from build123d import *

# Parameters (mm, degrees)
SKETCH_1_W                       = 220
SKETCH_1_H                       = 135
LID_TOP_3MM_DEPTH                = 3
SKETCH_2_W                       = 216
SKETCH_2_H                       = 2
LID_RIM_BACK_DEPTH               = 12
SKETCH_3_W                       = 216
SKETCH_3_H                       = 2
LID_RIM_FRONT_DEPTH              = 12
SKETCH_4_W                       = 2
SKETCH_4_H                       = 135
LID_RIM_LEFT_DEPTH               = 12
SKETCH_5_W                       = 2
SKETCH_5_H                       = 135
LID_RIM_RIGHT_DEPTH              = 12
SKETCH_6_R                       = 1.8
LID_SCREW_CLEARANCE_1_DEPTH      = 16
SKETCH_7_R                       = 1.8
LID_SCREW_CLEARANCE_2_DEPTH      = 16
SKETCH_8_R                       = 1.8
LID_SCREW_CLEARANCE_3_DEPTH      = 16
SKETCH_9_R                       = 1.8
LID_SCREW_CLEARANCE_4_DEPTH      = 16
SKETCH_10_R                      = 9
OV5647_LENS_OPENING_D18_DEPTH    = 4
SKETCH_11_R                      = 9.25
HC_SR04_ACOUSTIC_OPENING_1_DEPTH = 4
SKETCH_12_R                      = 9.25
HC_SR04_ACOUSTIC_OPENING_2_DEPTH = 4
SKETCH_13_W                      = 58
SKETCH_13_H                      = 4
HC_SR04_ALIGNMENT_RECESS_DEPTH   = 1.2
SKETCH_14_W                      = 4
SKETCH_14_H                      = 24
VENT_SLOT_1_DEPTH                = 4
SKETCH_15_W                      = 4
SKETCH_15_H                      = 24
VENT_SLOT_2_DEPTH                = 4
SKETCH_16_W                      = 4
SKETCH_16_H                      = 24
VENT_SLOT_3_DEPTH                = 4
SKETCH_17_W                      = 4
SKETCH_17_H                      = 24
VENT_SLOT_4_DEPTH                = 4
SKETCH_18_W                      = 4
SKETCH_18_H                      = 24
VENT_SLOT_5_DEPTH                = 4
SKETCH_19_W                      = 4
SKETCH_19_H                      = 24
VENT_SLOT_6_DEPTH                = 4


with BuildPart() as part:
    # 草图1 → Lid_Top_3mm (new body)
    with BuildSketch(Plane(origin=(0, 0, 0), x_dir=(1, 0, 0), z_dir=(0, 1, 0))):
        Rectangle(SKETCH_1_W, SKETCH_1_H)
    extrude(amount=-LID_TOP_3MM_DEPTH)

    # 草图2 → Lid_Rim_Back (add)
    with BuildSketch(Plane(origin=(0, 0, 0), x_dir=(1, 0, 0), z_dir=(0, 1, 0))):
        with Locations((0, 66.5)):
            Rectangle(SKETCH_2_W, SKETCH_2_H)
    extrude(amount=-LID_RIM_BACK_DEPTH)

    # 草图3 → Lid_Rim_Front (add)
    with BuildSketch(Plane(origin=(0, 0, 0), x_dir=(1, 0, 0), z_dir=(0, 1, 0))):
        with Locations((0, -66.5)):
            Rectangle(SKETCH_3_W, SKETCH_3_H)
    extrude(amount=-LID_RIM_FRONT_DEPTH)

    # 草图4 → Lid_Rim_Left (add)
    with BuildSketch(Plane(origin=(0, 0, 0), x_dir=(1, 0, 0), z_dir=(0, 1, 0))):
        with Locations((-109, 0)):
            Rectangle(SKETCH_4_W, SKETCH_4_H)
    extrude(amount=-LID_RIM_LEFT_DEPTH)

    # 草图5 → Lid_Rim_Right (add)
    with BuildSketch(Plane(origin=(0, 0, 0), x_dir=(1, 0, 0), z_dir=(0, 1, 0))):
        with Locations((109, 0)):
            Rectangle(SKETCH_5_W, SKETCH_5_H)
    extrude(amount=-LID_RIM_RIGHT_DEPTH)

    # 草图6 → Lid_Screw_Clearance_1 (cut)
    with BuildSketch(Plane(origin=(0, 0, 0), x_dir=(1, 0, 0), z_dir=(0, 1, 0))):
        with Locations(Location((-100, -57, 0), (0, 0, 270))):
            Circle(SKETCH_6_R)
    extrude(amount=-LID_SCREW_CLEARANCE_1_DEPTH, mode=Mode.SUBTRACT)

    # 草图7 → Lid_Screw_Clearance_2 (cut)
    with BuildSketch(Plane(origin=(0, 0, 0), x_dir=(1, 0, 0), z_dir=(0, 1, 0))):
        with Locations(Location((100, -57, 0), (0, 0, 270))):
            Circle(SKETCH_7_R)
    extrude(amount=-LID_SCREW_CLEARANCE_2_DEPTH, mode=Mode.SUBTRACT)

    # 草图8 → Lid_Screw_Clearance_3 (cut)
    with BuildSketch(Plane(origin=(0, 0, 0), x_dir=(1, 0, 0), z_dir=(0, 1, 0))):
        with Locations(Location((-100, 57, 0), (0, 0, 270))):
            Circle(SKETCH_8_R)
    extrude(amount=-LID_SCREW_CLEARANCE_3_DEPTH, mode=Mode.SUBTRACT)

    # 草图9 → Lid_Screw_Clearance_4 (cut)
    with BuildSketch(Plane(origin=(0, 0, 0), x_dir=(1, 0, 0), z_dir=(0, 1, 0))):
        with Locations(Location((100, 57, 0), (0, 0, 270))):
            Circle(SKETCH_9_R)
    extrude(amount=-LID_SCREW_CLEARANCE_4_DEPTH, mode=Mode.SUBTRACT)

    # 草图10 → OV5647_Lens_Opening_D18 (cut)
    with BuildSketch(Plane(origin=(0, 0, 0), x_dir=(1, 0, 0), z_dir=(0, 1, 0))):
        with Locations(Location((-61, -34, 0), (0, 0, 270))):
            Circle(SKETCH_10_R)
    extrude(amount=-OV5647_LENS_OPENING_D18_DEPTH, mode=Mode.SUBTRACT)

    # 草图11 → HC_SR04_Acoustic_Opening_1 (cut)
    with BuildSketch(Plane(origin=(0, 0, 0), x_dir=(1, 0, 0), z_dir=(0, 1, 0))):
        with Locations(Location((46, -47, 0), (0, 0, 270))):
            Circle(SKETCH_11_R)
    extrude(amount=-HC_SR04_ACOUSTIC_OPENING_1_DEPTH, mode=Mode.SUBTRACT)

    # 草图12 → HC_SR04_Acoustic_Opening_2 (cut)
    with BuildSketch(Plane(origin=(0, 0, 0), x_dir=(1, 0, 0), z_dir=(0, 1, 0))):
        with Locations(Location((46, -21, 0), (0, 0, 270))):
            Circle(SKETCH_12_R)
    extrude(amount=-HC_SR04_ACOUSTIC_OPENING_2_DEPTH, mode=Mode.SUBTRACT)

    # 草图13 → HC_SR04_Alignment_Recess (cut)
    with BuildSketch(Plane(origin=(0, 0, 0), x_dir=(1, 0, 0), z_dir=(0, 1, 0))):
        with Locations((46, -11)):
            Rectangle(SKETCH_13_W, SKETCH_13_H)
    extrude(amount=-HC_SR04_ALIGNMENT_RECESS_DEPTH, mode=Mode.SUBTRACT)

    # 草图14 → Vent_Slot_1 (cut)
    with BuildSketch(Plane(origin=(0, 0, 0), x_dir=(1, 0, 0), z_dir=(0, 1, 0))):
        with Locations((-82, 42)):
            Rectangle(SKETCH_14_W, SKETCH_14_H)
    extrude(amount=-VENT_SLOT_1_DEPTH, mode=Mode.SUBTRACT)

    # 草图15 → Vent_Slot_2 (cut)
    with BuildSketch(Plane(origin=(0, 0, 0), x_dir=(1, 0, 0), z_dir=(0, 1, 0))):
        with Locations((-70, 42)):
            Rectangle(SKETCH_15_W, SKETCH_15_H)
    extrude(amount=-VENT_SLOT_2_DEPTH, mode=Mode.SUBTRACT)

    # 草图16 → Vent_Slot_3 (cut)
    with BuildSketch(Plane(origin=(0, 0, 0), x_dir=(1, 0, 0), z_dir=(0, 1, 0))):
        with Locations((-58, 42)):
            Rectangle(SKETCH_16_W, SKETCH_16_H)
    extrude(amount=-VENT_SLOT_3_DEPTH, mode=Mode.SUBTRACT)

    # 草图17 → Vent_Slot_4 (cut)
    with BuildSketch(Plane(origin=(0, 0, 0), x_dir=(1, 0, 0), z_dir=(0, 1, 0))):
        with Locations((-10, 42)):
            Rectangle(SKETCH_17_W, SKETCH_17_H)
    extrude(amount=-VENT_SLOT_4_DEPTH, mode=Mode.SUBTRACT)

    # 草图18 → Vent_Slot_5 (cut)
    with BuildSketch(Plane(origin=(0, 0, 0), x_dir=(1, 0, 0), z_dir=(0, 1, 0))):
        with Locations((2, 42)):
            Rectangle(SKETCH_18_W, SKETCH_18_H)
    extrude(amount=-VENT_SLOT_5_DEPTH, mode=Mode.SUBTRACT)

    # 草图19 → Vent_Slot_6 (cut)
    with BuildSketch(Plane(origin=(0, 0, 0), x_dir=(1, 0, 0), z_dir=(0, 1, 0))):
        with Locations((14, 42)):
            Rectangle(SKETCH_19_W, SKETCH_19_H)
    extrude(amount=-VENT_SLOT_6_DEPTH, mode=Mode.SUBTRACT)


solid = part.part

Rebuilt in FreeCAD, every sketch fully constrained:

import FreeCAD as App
import Part
import Sketcher
from FreeCAD import Vector

doc = App.newDocument("Part")
params = doc.addObject("Spreadsheet::Sheet", "Params")
for row, (alias, value) in enumerate([
    ("sketch1_width", "220 mm"),
    ("sketch1_height", "135 mm"),
    ("pad1_length", "3 mm"),
    ("sketch2_width", "216 mm"),
    ("sketch2_height", "2 mm"),
    ("pad2_length", "12 mm"),
    ("sketch3_width", "216 mm"),
    ("sketch3_height", "2 mm"),
    ("pad3_length", "12 mm"),
    ("sketch4_width", "2 mm"),
    ("sketch4_height", "135 mm"),
    ("pad4_length", "12 mm"),
    ("sketch5_width", "2 mm"),
    ("sketch5_height", "135 mm"),
    ("pad5_length", "12 mm"),
    ("sketch6_diameter", "3.6 mm"),
    ("pocket1_length", "16 mm"),
    ("sketch7_diameter", "3.6 mm"),
    ("pocket2_length", "16 mm"),
    ("sketch8_diameter", "3.6 mm"),
    ("pocket3_length", "16 mm"),
    ("sketch9_diameter", "3.6 mm"),
    ("pocket4_length", "16 mm"),
    ("sketch10_diameter", "18 mm"),
    ("pocket5_length", "4 mm"),
    ("sketch11_diameter", "18.5 mm"),
    ("pocket6_length", "4 mm"),
    ("sketch12_diameter", "18.5 mm"),
    ("pocket7_length", "4 mm"),
    ("sketch13_width", "58 mm"),
    ("sketch13_height", "4 mm"),
    ("pocket8_length", "1.2 mm"),
    ("sketch14_width", "4 mm"),
    ("sketch14_height", "24 mm"),
    ("pocket9_length", "4 mm"),
    ("sketch15_width", "4 mm"),
    ("sketch15_height", "24 mm"),
    ("pocket10_length", "4 mm"),
    ("sketch16_width", "4 mm"),
    ("sketch16_height", "24 mm"),
    ("pocket11_length", "4 mm"),
    ("sketch17_width", "4 mm"),
    ("sketch17_height", "24 mm"),
    ("pocket12_length", "4 mm"),
    ("sketch18_width", "4 mm"),
    ("sketch18_height", "24 mm"),
    ("pocket13_length", "4 mm"),
    ("sketch19_width", "4 mm"),
    ("sketch19_height", "24 mm"),
    ("pocket14_length", "4 mm"),
], start=1):
    params.set(f"A{row}", alias)
    params.set(f"B{row}", "=" + value)
    params.setAlias(f"B{row}", alias)

body = doc.addObject("PartDesign::Body", "Body")

sketch1 = body.newObject("Sketcher::SketchObject", "Sketch")
sketch1.AttachmentSupport = (doc.getObject("XZ_Plane"), [""])
sketch1.MapMode = "FlatFace"
sketch1.addGeometry(Part.LineSegment(Vector(-110, -67.5, 0), Vector(-110, 67.5, 0)), False)
sketch1.addGeometry(Part.LineSegment(Vector(-110, 67.5, 0), Vector(110, 67.5, 0)), False)
sketch1.addGeometry(Part.LineSegment(Vector(110, 67.5, 0), Vector(110, -67.5, 0)), False)
sketch1.addGeometry(Part.LineSegment(Vector(110, -67.5, 0), Vector(-110, -67.5, 0)), False)
sketch1.addConstraint(Sketcher.Constraint("Coincident", 0, 2, 1, 1))
sketch1.addConstraint(Sketcher.Constraint("Coincident", 1, 2, 2, 1))
sketch1.addConstraint(Sketcher.Constraint("Coincident", 2, 2, 3, 1))
sketch1.addConstraint(Sketcher.Constraint("Coincident", 3, 2, 0, 1))
sketch1.addConstraint(Sketcher.Constraint("Vertical", 0))
sketch1.addConstraint(Sketcher.Constraint("Horizontal", 1))
sketch1.addConstraint(Sketcher.Constraint("Vertical", 2))
sketch1.addConstraint(Sketcher.Constraint("Horizontal", 3))
sketch1.addConstraint(Sketcher.Constraint("Symmetric", 0, 2, 2, 2, -1, 1))
sketch1.addConstraint(Sketcher.Constraint("DistanceX", 1, 1, 1, 2, 220.0))
sketch1.addConstraint(Sketcher.Constraint("DistanceY", 0, 1, 0, 2, 135.0))
sketch1.setExpression("Constraints[9]", "Params.sketch1_width")
sketch1.setExpression("Constraints[10]", "Params.sketch1_height")
pad1 = body.newObject("PartDesign::Pad", "Pad")
pad1.Profile = sketch1
pad1.setExpression("Length", "Params.pad1_length")

sketch2 = body.newObject("Sketcher::SketchObject", "Sketch001")
sketch2.AttachmentSupport = (doc.getObject("XZ_Plane"), [""])
sketch2.MapMode = "FlatFace"
sketch2.addGeometry(Part.LineSegment(Vector(-108, -67.5, 0), Vector(-108, -65.5, 0)), False)
sketch2.addGeometry(Part.LineSegment(Vector(-108, -65.5, 0), Vector(108, -65.5, 0)), False)
sketch2.addGeometry(Part.LineSegment(Vector(108, -65.5, 0), Vector(108, -67.5, 0)), False)
sketch2.addGeometry(Part.LineSegment(Vector(108, -67.5, 0), Vector(-108, -67.5, 0)), False)
sketch2.addConstraint(Sketcher.Constraint("Coincident", 0, 2, 1, 1))
sketch2.addConstraint(Sketcher.Constraint("Coincident", 1, 2, 2, 1))
sketch2.addConstraint(Sketcher.Constraint("Coincident", 2, 2, 3, 1))
sketch2.addConstraint(Sketcher.Constraint("Coincident", 3, 2, 0, 1))
sketch2.addConstraint(Sketcher.Constraint("Vertical", 0))
sketch2.addConstraint(Sketcher.Constraint("Horizontal", 1))
sketch2.addConstraint(Sketcher.Constraint("Vertical", 2))
sketch2.addConstraint(Sketcher.Constraint("Horizontal", 3))
sketch2.addConstraint(Sketcher.Constraint("DistanceX", 1, 1, 1, 2, 216.0))
sketch2.addConstraint(Sketcher.Constraint("DistanceY", 0, 1, 0, 2, 2.0))
sketch2.addConstraint(Sketcher.Constraint("DistanceX", 0, 2, -1, 1, 108.0))
sketch2.addConstraint(Sketcher.Constraint("DistanceY", 0, 2, -1, 1, 65.5))
sketch2.setExpression("Constraints[8]", "Params.sketch2_width")
sketch2.setExpression("Constraints[9]", "Params.sketch2_height")
pad2 = body.newObject("PartDesign::Pad", "Pad001")
pad2.Profile = sketch2
pad2.setExpression("Length", "Params.pad2_length")

sketch3 = body.newObject("Sketcher::SketchObject", "Sketch002")
sketch3.AttachmentSupport = (doc.getObject("XZ_Plane"), [""])
sketch3.MapMode = "FlatFace"
sketch3.addGeometry(Part.LineSegment(Vector(-108, 65.5, 0), Vector(-108, 67.5, 0)), False)
sketch3.addGeometry(Part.LineSegment(Vector(-108, 67.5, 0), Vector(108, 67.5, 0)), False)
sketch3.addGeometry(Part.LineSegment(Vector(108, 67.5, 0), Vector(108, 65.5, 0)), False)
sketch3.addGeometry(Part.LineSegment(Vector(108, 65.5, 0), Vector(-108, 65.5, 0)), False)
sketch3.addConstraint(Sketcher.Constraint("Coincident", 0, 2, 1, 1))
sketch3.addConstraint(Sketcher.Constraint("Coincident", 1, 2, 2, 1))
sketch3.addConstraint(Sketcher.Constraint("Coincident", 2, 2, 3, 1))
sketch3.addConstraint(Sketcher.Constraint("Coincident", 3, 2, 0, 1))
sketch3.addConstraint(Sketcher.Constraint("Vertical", 0))
sketch3.addConstraint(Sketcher.Constraint("Horizontal", 1))
sketch3.addConstraint(Sketcher.Constraint("Vertical", 2))
sketch3.addConstraint(Sketcher.Constraint("Horizontal", 3))
sketch3.addConstraint(Sketcher.Constraint("DistanceX", 1, 1, 1, 2, 216.0))
sketch3.addConstraint(Sketcher.Constraint("DistanceY", 0, 1, 0, 2, 2.0))
sketch3.addConstraint(Sketcher.Constraint("DistanceX", 0, 2, -1, 1, 108.0))
sketch3.addConstraint(Sketcher.Constraint("DistanceY", -1, 1, 0, 2, 67.5))
sketch3.setExpression("Constraints[8]", "Params.sketch3_width")
sketch3.setExpression("Constraints[9]", "Params.sketch3_height")
pad3 = body.newObject("PartDesign::Pad", "Pad002")
pad3.Profile = sketch3
pad3.setExpression("Length", "Params.pad3_length")

sketch4 = body.newObject("Sketcher::SketchObject", "Sketch003")
sketch4.AttachmentSupport = (doc.getObject("XZ_Plane"), [""])
sketch4.MapMode = "FlatFace"
sketch4.addGeometry(Part.LineSegment(Vector(-110, -67.5, 0), Vector(-110, 67.5, 0)), False)
sketch4.addGeometry(Part.LineSegment(Vector(-110, 67.5, 0), Vector(-108, 67.5, 0)), False)
sketch4.addGeometry(Part.LineSegment(Vector(-108, 67.5, 0), Vector(-108, -67.5, 0)), False)
sketch4.addGeometry(Part.LineSegment(Vector(-108, -67.5, 0), Vector(-110, -67.5, 0)), False)
sketch4.addConstraint(Sketcher.Constraint("Coincident", 0, 2, 1, 1))
sketch4.addConstraint(Sketcher.Constraint("Coincident", 1, 2, 2, 1))
sketch4.addConstraint(Sketcher.Constraint("Coincident", 2, 2, 3, 1))
sketch4.addConstraint(Sketcher.Constraint("Coincident", 3, 2, 0, 1))
sketch4.addConstraint(Sketcher.Constraint("Vertical", 0))
sketch4.addConstraint(Sketcher.Constraint("Horizontal", 1))
sketch4.addConstraint(Sketcher.Constraint("Vertical", 2))
sketch4.addConstraint(Sketcher.Constraint("Horizontal", 3))
sketch4.addConstraint(Sketcher.Constraint("DistanceX", 1, 1, 1, 2, 2.0))
sketch4.addConstraint(Sketcher.Constraint("DistanceY", 0, 1, 0, 2, 135.0))
sketch4.addConstraint(Sketcher.Constraint("DistanceX", 0, 2, -1, 1, 110.0))
sketch4.addConstraint(Sketcher.Constraint("DistanceY", -1, 1, 0, 2, 67.5))
sketch4.setExpression("Constraints[8]", "Params.sketch4_width")
sketch4.setExpression("Constraints[9]", "Params.sketch4_height")
pad4 = body.newObject("PartDesign::Pad", "Pad003")
pad4.Profile = sketch4
pad4.setExpression("Length", "Params.pad4_length")

sketch5 = body.newObject("Sketcher::SketchObject", "Sketch004")
sketch5.AttachmentSupport = (doc.getObject("XZ_Plane"), [""])
sketch5.MapMode = "FlatFace"
sketch5.addGeometry(Part.LineSegment(Vector(108, -67.5, 0), Vector(108, 67.5, 0)), False)
sketch5.addGeometry(Part.LineSegment(Vector(108, 67.5, 0), Vector(110, 67.5, 0)), False)
sketch5.addGeometry(Part.LineSegment(Vector(110, 67.5, 0), Vector(110, -67.5, 0)), False)
sketch5.addGeometry(Part.LineSegment(Vector(110, -67.5, 0), Vector(108, -67.5, 0)), False)
sketch5.addConstraint(Sketcher.Constraint("Coincident", 0, 2, 1, 1))
sketch5.addConstraint(Sketcher.Constraint("Coincident", 1, 2, 2, 1))
sketch5.addConstraint(Sketcher.Constraint("Coincident", 2, 2, 3, 1))
sketch5.addConstraint(Sketcher.Constraint("Coincident", 3, 2, 0, 1))
sketch5.addConstraint(Sketcher.Constraint("Vertical", 0))
sketch5.addConstraint(Sketcher.Constraint("Horizontal", 1))
sketch5.addConstraint(Sketcher.Constraint("Vertical", 2))
sketch5.addConstraint(Sketcher.Constraint("Horizontal", 3))
sketch5.addConstraint(Sketcher.Constraint("DistanceX", 1, 1, 1, 2, 2.0))
sketch5.addConstraint(Sketcher.Constraint("DistanceY", 0, 1, 0, 2, 135.0))
sketch5.addConstraint(Sketcher.Constraint("DistanceX", -1, 1, 0, 2, 108.0))
sketch5.addConstraint(Sketcher.Constraint("DistanceY", -1, 1, 0, 2, 67.5))
sketch5.setExpression("Constraints[8]", "Params.sketch5_width")
sketch5.setExpression("Constraints[9]", "Params.sketch5_height")
pad5 = body.newObject("PartDesign::Pad", "Pad004")
pad5.Profile = sketch5
pad5.setExpression("Length", "Params.pad5_length")

sketch6 = body.newObject("Sketcher::SketchObject", "Sketch005")
sketch6.AttachmentSupport = (doc.getObject("XZ_Plane"), [""])
sketch6.MapMode = "FlatFace"
sketch6.addGeometry(Part.Circle(Vector(-100, 57, 0), Vector(0, 0, 1), 1.8), False)
sketch6.addConstraint(Sketcher.Constraint("Diameter", 0, 3.6))
sketch6.addConstraint(Sketcher.Constraint("DistanceX", 0, 3, -1, 1, 100.0))
sketch6.addConstraint(Sketcher.Constraint("DistanceY", -1, 1, 0, 3, 57.0))
sketch6.setExpression("Constraints[0]", "Params.sketch6_diameter")
pocket1 = body.newObject("PartDesign::Pocket", "Pocket")
pocket1.Profile = sketch6
pocket1.setExpression("Length", "Params.pocket1_length")
pocket1.Reversed = True

sketch7 = body.newObject("Sketcher::SketchObject", "Sketch006")
sketch7.AttachmentSupport = (doc.getObject("XZ_Plane"), [""])
sketch7.MapMode = "FlatFace"
sketch7.addGeometry(Part.Circle(Vector(100, 57, 0), Vector(0, 0, 1), 1.8), False)
sketch7.addConstraint(Sketcher.Constraint("Diameter", 0, 3.6))
sketch7.addConstraint(Sketcher.Constraint("DistanceX", -1, 1, 0, 3, 100.0))
sketch7.addConstraint(Sketcher.Constraint("DistanceY", -1, 1, 0, 3, 57.0))
sketch7.setExpression("Constraints[0]", "Params.sketch7_diameter")
pocket2 = body.newObject("PartDesign::Pocket", "Pocket001")
pocket2.Profile = sketch7
pocket2.setExpression("Length", "Params.pocket2_length")
pocket2.Reversed = True

sketch8 = body.newObject("Sketcher::SketchObject", "Sketch007")
sketch8.AttachmentSupport = (doc.getObject("XZ_Plane"), [""])
sketch8.MapMode = "FlatFace"
sketch8.addGeometry(Part.Circle(Vector(-100, -57, 0), Vector(0, 0, 1), 1.8), False)
sketch8.addConstraint(Sketcher.Constraint("Diameter", 0, 3.6))
sketch8.addConstraint(Sketcher.Constraint("DistanceX", 0, 3, -1, 1, 100.0))
sketch8.addConstraint(Sketcher.Constraint("DistanceY", 0, 3, -1, 1, 57.0))
sketch8.setExpression("Constraints[0]", "Params.sketch8_diameter")
pocket3 = body.newObject("PartDesign::Pocket", "Pocket002")
pocket3.Profile = sketch8
pocket3.setExpression("Length", "Params.pocket3_length")
pocket3.Reversed = True

sketch9 = body.newObject("Sketcher::SketchObject", "Sketch008")
sketch9.AttachmentSupport = (doc.getObject("XZ_Plane"), [""])
sketch9.MapMode = "FlatFace"
sketch9.addGeometry(Part.Circle(Vector(100, -57, 0), Vector(0, 0, 1), 1.8), False)
sketch9.addConstraint(Sketcher.Constraint("Diameter", 0, 3.6))
sketch9.addConstraint(Sketcher.Constraint("DistanceX", -1, 1, 0, 3, 100.0))
sketch9.addConstraint(Sketcher.Constraint("DistanceY", 0, 3, -1, 1, 57.0))
sketch9.setExpression("Constraints[0]", "Params.sketch9_diameter")
pocket4 = body.newObject("PartDesign::Pocket", "Pocket003")
pocket4.Profile = sketch9
pocket4.setExpression("Length", "Params.pocket4_length")
pocket4.Reversed = True

sketch10 = body.newObject("Sketcher::SketchObject", "Sketch009")
sketch10.AttachmentSupport = (doc.getObject("XZ_Plane"), [""])
sketch10.MapMode = "FlatFace"
sketch10.addGeometry(Part.Circle(Vector(-61, 34, 0), Vector(0, 0, 1), 9), False)
sketch10.addConstraint(Sketcher.Constraint("Diameter", 0, 18.0))
sketch10.addConstraint(Sketcher.Constraint("DistanceX", 0, 3, -1, 1, 61.0))
sketch10.addConstraint(Sketcher.Constraint("DistanceY", -1, 1, 0, 3, 34.0))
sketch10.setExpression("Constraints[0]", "Params.sketch10_diameter")
pocket5 = body.newObject("PartDesign::Pocket", "Pocket004")
pocket5.Profile = sketch10
pocket5.setExpression("Length", "Params.pocket5_length")
pocket5.Reversed = True

sketch11 = body.newObject("Sketcher::SketchObject", "Sketch010")
sketch11.AttachmentSupport = (doc.getObject("XZ_Plane"), [""])
sketch11.MapMode = "FlatFace"
sketch11.addGeometry(Part.Circle(Vector(46, 47, 0), Vector(0, 0, 1), 9.25), False)
sketch11.addConstraint(Sketcher.Constraint("Diameter", 0, 18.5))
sketch11.addConstraint(Sketcher.Constraint("DistanceX", -1, 1, 0, 3, 46.0))
sketch11.addConstraint(Sketcher.Constraint("DistanceY", -1, 1, 0, 3, 47.0))
sketch11.setExpression("Constraints[0]", "Params.sketch11_diameter")
pocket6 = body.newObject("PartDesign::Pocket", "Pocket005")
pocket6.Profile = sketch11
pocket6.setExpression("Length", "Params.pocket6_length")
pocket6.Reversed = True

sketch12 = body.newObject("Sketcher::SketchObject", "Sketch011")
sketch12.AttachmentSupport = (doc.getObject("XZ_Plane"), [""])
sketch12.MapMode = "FlatFace"
sketch12.addGeometry(Part.Circle(Vector(46, 21, 0), Vector(0, 0, 1), 9.25), False)
sketch12.addConstraint(Sketcher.Constraint("Diameter", 0, 18.5))
sketch12.addConstraint(Sketcher.Constraint("DistanceX", -1, 1, 0, 3, 46.0))
sketch12.addConstraint(Sketcher.Constraint("DistanceY", -1, 1, 0, 3, 21.0))
sketch12.setExpression("Constraints[0]", "Params.sketch12_diameter")
pocket7 = body.newObject("PartDesign::Pocket", "Pocket006")
pocket7.Profile = sketch12
pocket7.setExpression("Length", "Params.pocket7_length")
pocket7.Reversed = True

sketch13 = body.newObject("Sketcher::SketchObject", "Sketch012")
sketch13.AttachmentSupport = (doc.getObject("XZ_Plane"), [""])
sketch13.MapMode = "FlatFace"
sketch13.addGeometry(Part.LineSegment(Vector(17, 9, 0), Vector(17, 13, 0)), False)
sketch13.addGeometry(Part.LineSegment(Vector(17, 13, 0), Vector(75, 13, 0)), False)
sketch13.addGeometry(Part.LineSegment(Vector(75, 13, 0), Vector(75, 9, 0)), False)
sketch13.addGeometry(Part.LineSegment(Vector(75, 9, 0), Vector(17, 9, 0)), False)
sketch13.addConstraint(Sketcher.Constraint("Coincident", 0, 2, 1, 1))
sketch13.addConstraint(Sketcher.Constraint("Coincident", 1, 2, 2, 1))
sketch13.addConstraint(Sketcher.Constraint("Coincident", 2, 2, 3, 1))
sketch13.addConstraint(Sketcher.Constraint("Coincident", 3, 2, 0, 1))
sketch13.addConstraint(Sketcher.Constraint("Vertical", 0))
sketch13.addConstraint(Sketcher.Constraint("Horizontal", 1))
sketch13.addConstraint(Sketcher.Constraint("Vertical", 2))
sketch13.addConstraint(Sketcher.Constraint("Horizontal", 3))
sketch13.addConstraint(Sketcher.Constraint("DistanceX", 1, 1, 1, 2, 58.0))
sketch13.addConstraint(Sketcher.Constraint("DistanceY", 0, 1, 0, 2, 4.0))
sketch13.addConstraint(Sketcher.Constraint("DistanceX", -1, 1, 0, 2, 17.0))
sketch13.addConstraint(Sketcher.Constraint("DistanceY", -1, 1, 0, 2, 13.0))
sketch13.setExpression("Constraints[8]", "Params.sketch13_width")
sketch13.setExpression("Constraints[9]", "Params.sketch13_height")
pocket8 = body.newObject("PartDesign::Pocket", "Pocket007")
pocket8.Profile = sketch13
pocket8.setExpression("Length", "Params.pocket8_length")
pocket8.Reversed = True

sketch14 = body.newObject("Sketcher::SketchObject", "Sketch013")
sketch14.AttachmentSupport = (doc.getObject("XZ_Plane"), [""])
sketch14.MapMode = "FlatFace"
sketch14.addGeometry(Part.LineSegment(Vector(-84, -54, 0), Vector(-84, -30, 0)), False)
sketch14.addGeometry(Part.LineSegment(Vector(-84, -30, 0), Vector(-80, -30, 0)), False)
sketch14.addGeometry(Part.LineSegment(Vector(-80, -30, 0), Vector(-80, -54, 0)), False)
sketch14.addGeometry(Part.LineSegment(Vector(-80, -54, 0), Vector(-84, -54, 0)), False)
sketch14.addConstraint(Sketcher.Constraint("Coincident", 0, 2, 1, 1))
sketch14.addConstraint(Sketcher.Constraint("Coincident", 1, 2, 2, 1))
sketch14.addConstraint(Sketcher.Constraint("Coincident", 2, 2, 3, 1))
sketch14.addConstraint(Sketcher.Constraint("Coincident", 3, 2, 0, 1))
sketch14.addConstraint(Sketcher.Constraint("Vertical", 0))
sketch14.addConstraint(Sketcher.Constraint("Horizontal", 1))
sketch14.addConstraint(Sketcher.Constraint("Vertical", 2))
sketch14.addConstraint(Sketcher.Constraint("Horizontal", 3))
sketch14.addConstraint(Sketcher.Constraint("DistanceX", 1, 1, 1, 2, 4.0))
sketch14.addConstraint(Sketcher.Constraint("DistanceY", 0, 1, 0, 2, 24.0))
sketch14.addConstraint(Sketcher.Constraint("DistanceX", 0, 2, -1, 1, 84.0))
sketch14.addConstraint(Sketcher.Constraint("DistanceY", 0, 2, -1, 1, 30.0))
sketch14.setExpression("Constraints[8]", "Params.sketch14_width")
sketch14.setExpression("Constraints[9]", "Params.sketch14_height")
pocket9 = body.newObject("PartDesign::Pocket", "Pocket008")
pocket9.Profile = sketch14
pocket9.setExpression("Length", "Params.pocket9_length")
pocket9.Reversed = True

sketch15 = body.newObject("Sketcher::SketchObject", "Sketch014")
sketch15.AttachmentSupport = (doc.getObject("XZ_Plane"), [""])
sketch15.MapMode = "FlatFace"
sketch15.addGeometry(Part.LineSegment(Vector(-72, -54, 0), Vector(-72, -30, 0)), False)
sketch15.addGeometry(Part.LineSegment(Vector(-72, -30, 0), Vector(-68, -30, 0)), False)
sketch15.addGeometry(Part.LineSegment(Vector(-68, -30, 0), Vector(-68, -54, 0)), False)
sketch15.addGeometry(Part.LineSegment(Vector(-68, -54, 0), Vector(-72, -54, 0)), False)
sketch15.addConstraint(Sketcher.Constraint("Coincident", 0, 2, 1, 1))
sketch15.addConstraint(Sketcher.Constraint("Coincident", 1, 2, 2, 1))
sketch15.addConstraint(Sketcher.Constraint("Coincident", 2, 2, 3, 1))
sketch15.addConstraint(Sketcher.Constraint("Coincident", 3, 2, 0, 1))
sketch15.addConstraint(Sketcher.Constraint("Vertical", 0))
sketch15.addConstraint(Sketcher.Constraint("Horizontal", 1))
sketch15.addConstraint(Sketcher.Constraint("Vertical", 2))
sketch15.addConstraint(Sketcher.Constraint("Horizontal", 3))
sketch15.addConstraint(Sketcher.Constraint("DistanceX", 1, 1, 1, 2, 4.0))
sketch15.addConstraint(Sketcher.Constraint("DistanceY", 0, 1, 0, 2, 24.0))
sketch15.addConstraint(Sketcher.Constraint("DistanceX", 0, 2, -1, 1, 72.0))
sketch15.addConstraint(Sketcher.Constraint("DistanceY", 0, 2, -1, 1, 30.0))
sketch15.setExpression("Constraints[8]", "Params.sketch15_width")
sketch15.setExpression("Constraints[9]", "Params.sketch15_height")
pocket10 = body.newObject("PartDesign::Pocket", "Pocket009")
pocket10.Profile = sketch15
pocket10.setExpression("Length", "Params.pocket10_length")
pocket10.Reversed = True

sketch16 = body.newObject("Sketcher::SketchObject", "Sketch015")
sketch16.AttachmentSupport = (doc.getObject("XZ_Plane"), [""])
sketch16.MapMode = "FlatFace"
sketch16.addGeometry(Part.LineSegment(Vector(-60, -54, 0), Vector(-60, -30, 0)), False)
sketch16.addGeometry(Part.LineSegment(Vector(-60, -30, 0), Vector(-56, -30, 0)), False)
sketch16.addGeometry(Part.LineSegment(Vector(-56, -30, 0), Vector(-56, -54, 0)), False)
sketch16.addGeometry(Part.LineSegment(Vector(-56, -54, 0), Vector(-60, -54, 0)), False)
sketch16.addConstraint(Sketcher.Constraint("Coincident", 0, 2, 1, 1))
sketch16.addConstraint(Sketcher.Constraint("Coincident", 1, 2, 2, 1))
sketch16.addConstraint(Sketcher.Constraint("Coincident", 2, 2, 3, 1))
sketch16.addConstraint(Sketcher.Constraint("Coincident", 3, 2, 0, 1))
sketch16.addConstraint(Sketcher.Constraint("Vertical", 0))
sketch16.addConstraint(Sketcher.Constraint("Horizontal", 1))
sketch16.addConstraint(Sketcher.Constraint("Vertical", 2))
sketch16.addConstraint(Sketcher.Constraint("Horizontal", 3))
sketch16.addConstraint(Sketcher.Constraint("DistanceX", 1, 1, 1, 2, 4.0))
sketch16.addConstraint(Sketcher.Constraint("DistanceY", 0, 1, 0, 2, 24.0))
sketch16.addConstraint(Sketcher.Constraint("DistanceX", 0, 2, -1, 1, 60.0))
sketch16.addConstraint(Sketcher.Constraint("DistanceY", 0, 2, -1, 1, 30.0))
sketch16.setExpression("Constraints[8]", "Params.sketch16_width")
sketch16.setExpression("Constraints[9]", "Params.sketch16_height")
pocket11 = body.newObject("PartDesign::Pocket", "Pocket010")
pocket11.Profile = sketch16
pocket11.setExpression("Length", "Params.pocket11_length")
pocket11.Reversed = True

sketch17 = body.newObject("Sketcher::SketchObject", "Sketch016")
sketch17.AttachmentSupport = (doc.getObject("XZ_Plane"), [""])
sketch17.MapMode = "FlatFace"
sketch17.addGeometry(Part.LineSegment(Vector(-12, -54, 0), Vector(-12, -30, 0)), False)
sketch17.addGeometry(Part.LineSegment(Vector(-12, -30, 0), Vector(-8, -30, 0)), False)
sketch17.addGeometry(Part.LineSegment(Vector(-8, -30, 0), Vector(-8, -54, 0)), False)
sketch17.addGeometry(Part.LineSegment(Vector(-8, -54, 0), Vector(-12, -54, 0)), False)
sketch17.addConstraint(Sketcher.Constraint("Coincident", 0, 2, 1, 1))
sketch17.addConstraint(Sketcher.Constraint("Coincident", 1, 2, 2, 1))
sketch17.addConstraint(Sketcher.Constraint("Coincident", 2, 2, 3, 1))
sketch17.addConstraint(Sketcher.Constraint("Coincident", 3, 2, 0, 1))
sketch17.addConstraint(Sketcher.Constraint("Vertical", 0))
sketch17.addConstraint(Sketcher.Constraint("Horizontal", 1))
sketch17.addConstraint(Sketcher.Constraint("Vertical", 2))
sketch17.addConstraint(Sketcher.Constraint("Horizontal", 3))
sketch17.addConstraint(Sketcher.Constraint("DistanceX", 1, 1, 1, 2, 4.0))
sketch17.addConstraint(Sketcher.Constraint("DistanceY", 0, 1, 0, 2, 24.0))
sketch17.addConstraint(Sketcher.Constraint("DistanceX", 0, 2, -1, 1, 12.0))
sketch17.addConstraint(Sketcher.Constraint("DistanceY", 0, 2, -1, 1, 30.0))
sketch17.setExpression("Constraints[8]", "Params.sketch17_width")
sketch17.setExpression("Constraints[9]", "Params.sketch17_height")
pocket12 = body.newObject("PartDesign::Pocket", "Pocket011")
pocket12.Profile = sketch17
pocket12.setExpression("Length", "Params.pocket12_length")
pocket12.Reversed = True

sketch18 = body.newObject("Sketcher::SketchObject", "Sketch017")
sketch18.AttachmentSupport = (doc.getObject("XZ_Plane"), [""])
sketch18.MapMode = "FlatFace"
sketch18.addGeometry(Part.LineSegment(Vector(0, -54, 0), Vector(0, -30, 0)), False)
sketch18.addGeometry(Part.LineSegment(Vector(0, -30, 0), Vector(4, -30, 0)), False)
sketch18.addGeometry(Part.LineSegment(Vector(4, -30, 0), Vector(4, -54, 0)), False)
sketch18.addGeometry(Part.LineSegment(Vector(4, -54, 0), Vector(0, -54, 0)), False)
sketch18.addConstraint(Sketcher.Constraint("Coincident", 0, 2, 1, 1))
sketch18.addConstraint(Sketcher.Constraint("Coincident", 1, 2, 2, 1))
sketch18.addConstraint(Sketcher.Constraint("Coincident", 2, 2, 3, 1))
sketch18.addConstraint(Sketcher.Constraint("Coincident", 3, 2, 0, 1))
sketch18.addConstraint(Sketcher.Constraint("Vertical", 0))
sketch18.addConstraint(Sketcher.Constraint("Horizontal", 1))
sketch18.addConstraint(Sketcher.Constraint("Vertical", 2))
sketch18.addConstraint(Sketcher.Constraint("Horizontal", 3))
sketch18.addConstraint(Sketcher.Constraint("PointOnObject", 0, 2, -2))
sketch18.addConstraint(Sketcher.Constraint("DistanceX", 1, 1, 1, 2, 4.0))
sketch18.addConstraint(Sketcher.Constraint("DistanceY", 0, 1, 0, 2, 24.0))
sketch18.addConstraint(Sketcher.Constraint("DistanceY", 0, 2, -1, 1, 30.0))
sketch18.setExpression("Constraints[9]", "Params.sketch18_width")
sketch18.setExpression("Constraints[10]", "Params.sketch18_height")
pocket13 = body.newObject("PartDesign::Pocket", "Pocket012")
pocket13.Profile = sketch18
pocket13.setExpression("Length", "Params.pocket13_length")
pocket13.Reversed = True

sketch19 = body.newObject("Sketcher::SketchObject", "Sketch018")
sketch19.AttachmentSupport = (doc.getObject("XZ_Plane"), [""])
sketch19.MapMode = "FlatFace"
sketch19.addGeometry(Part.LineSegment(Vector(12, -54, 0), Vector(12, -30, 0)), False)
sketch19.addGeometry(Part.LineSegment(Vector(12, -30, 0), Vector(16, -30, 0)), False)
sketch19.addGeometry(Part.LineSegment(Vector(16, -30, 0), Vector(16, -54, 0)), False)
sketch19.addGeometry(Part.LineSegment(Vector(16, -54, 0), Vector(12, -54, 0)), False)
sketch19.addConstraint(Sketcher.Constraint("Coincident", 0, 2, 1, 1))
sketch19.addConstraint(Sketcher.Constraint("Coincident", 1, 2, 2, 1))
sketch19.addConstraint(Sketcher.Constraint("Coincident", 2, 2, 3, 1))
sketch19.addConstraint(Sketcher.Constraint("Coincident", 3, 2, 0, 1))
sketch19.addConstraint(Sketcher.Constraint("Vertical", 0))
sketch19.addConstraint(Sketcher.Constraint("Horizontal", 1))
sketch19.addConstraint(Sketcher.Constraint("Vertical", 2))
sketch19.addConstraint(Sketcher.Constraint("Horizontal", 3))
sketch19.addConstraint(Sketcher.Constraint("DistanceX", 1, 1, 1, 2, 4.0))
sketch19.addConstraint(Sketcher.Constraint("DistanceY", 0, 1, 0, 2, 24.0))
sketch19.addConstraint(Sketcher.Constraint("DistanceX", -1, 1, 0, 2, 12.0))
sketch19.addConstraint(Sketcher.Constraint("DistanceY", 0, 2, -1, 1, 30.0))
sketch19.setExpression("Constraints[8]", "Params.sketch19_width")
sketch19.setExpression("Constraints[9]", "Params.sketch19_height")
pocket14 = body.newObject("PartDesign::Pocket", "Pocket013")
pocket14.Profile = sketch19
pocket14.setExpression("Length", "Params.pocket14_length")
pocket14.Reversed = True

doc.recompute()
